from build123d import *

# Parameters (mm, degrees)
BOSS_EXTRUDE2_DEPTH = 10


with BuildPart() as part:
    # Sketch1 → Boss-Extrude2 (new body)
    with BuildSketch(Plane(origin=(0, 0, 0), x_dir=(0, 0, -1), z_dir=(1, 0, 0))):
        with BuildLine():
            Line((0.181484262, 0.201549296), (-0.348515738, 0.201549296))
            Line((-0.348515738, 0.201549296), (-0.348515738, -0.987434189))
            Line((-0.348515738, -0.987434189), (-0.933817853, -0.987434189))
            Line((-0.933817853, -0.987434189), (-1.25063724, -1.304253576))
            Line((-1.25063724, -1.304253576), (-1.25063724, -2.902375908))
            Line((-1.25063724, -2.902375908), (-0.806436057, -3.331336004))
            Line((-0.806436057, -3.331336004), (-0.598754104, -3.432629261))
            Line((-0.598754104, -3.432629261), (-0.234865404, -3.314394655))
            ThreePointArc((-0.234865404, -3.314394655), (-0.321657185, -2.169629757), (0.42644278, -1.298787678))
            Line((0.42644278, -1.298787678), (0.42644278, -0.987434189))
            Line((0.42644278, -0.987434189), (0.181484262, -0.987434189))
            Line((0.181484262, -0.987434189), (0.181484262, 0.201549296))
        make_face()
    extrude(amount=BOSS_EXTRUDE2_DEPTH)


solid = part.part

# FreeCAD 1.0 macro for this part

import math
import FreeCAD as App
import Part
import Sketcher
Q = App.Units.Quantity

doc = App.newDocument("Part")
body = doc.addObject("PartDesign::Body", "Body")

# Sketch on YZ plane
sketch1 = body.newObject("Sketcher::SketchObject", "Sketch")
sketch1.AttachmentSupport = (doc.getObject("YZ_Plane"), [""])
sketch1.MapMode = "FlatFace"
sketch1.addGeometry(Part.LineSegment(App.Vector(0.201549, -0.181484, 0), App.Vector(0.201549, 0.348516, 0)), False)
sketch1.addGeometry(Part.LineSegment(App.Vector(0.201549, 0.348516, 0), App.Vector(-0.987434, 0.348516, 0)), False)
sketch1.addGeometry(Part.LineSegment(App.Vector(-0.987434, 0.348516, 0), App.Vector(-0.987434, 0.933818, 0)), False)
sketch1.addGeometry(Part.LineSegment(App.Vector(-0.987434, 0.933818, 0), App.Vector(-1.304254, 1.250637, 0)), False)
sketch1.addGeometry(Part.LineSegment(App.Vector(-1.304254, 1.250637, 0), App.Vector(-2.902376, 1.250637, 0)), False)
sketch1.addGeometry(Part.LineSegment(App.Vector(-2.902376, 1.250637, 0), App.Vector(-3.331336, 0.806436, 0)), False)
sketch1.addGeometry(Part.LineSegment(App.Vector(-3.331336, 0.806436, 0), App.Vector(-3.432629, 0.598754, 0)), False)
sketch1.addGeometry(Part.LineSegment(App.Vector(-3.432629, 0.598754, 0), App.Vector(-3.314395, 0.234865, 0)), False)
sketch1.addGeometry(Part.ArcOfCircle(Part.Circle(App.Vector(-2.637245, -1.103592, 0), App.Vector(0, 0, 1), 1.5), math.radians(26.835657), math.radians(116.835657)), False)
sketch1.addGeometry(Part.LineSegment(App.Vector(-1.298788, -0.426443, 0), App.Vector(-0.987434, -0.426443, 0)), False)
sketch1.addGeometry(Part.LineSegment(App.Vector(-0.987434, -0.426443, 0), App.Vector(-0.987434, -0.181484, 0)), False)
sketch1.addGeometry(Part.LineSegment(App.Vector(-0.987434, -0.181484, 0), App.Vector(0.201549, -0.181484, 0)), False)
sketch1.addConstraint(Sketcher.Constraint("Coincident", 0, 2, 1, 1))
sketch1.addConstraint(Sketcher.Constraint("Coincident", 1, 2, 2, 1))
sketch1.addConstraint(Sketcher.Constraint("Coincident", 2, 2, 3, 1))
sketch1.addConstraint(Sketcher.Constraint("Coincident", 3, 2, 4, 1))
sketch1.addConstraint(Sketcher.Constraint("Coincident", 4, 2, 5, 1))
sketch1.addConstraint(Sketcher.Constraint("Coincident", 5, 2, 6, 1))
sketch1.addConstraint(Sketcher.Constraint("Coincident", 6, 2, 7, 1))
sketch1.addConstraint(Sketcher.Constraint("Coincident", 7, 2, 8, 2))
sketch1.addConstraint(Sketcher.Constraint("Coincident", 8, 1, 9, 1))
sketch1.addConstraint(Sketcher.Constraint("Coincident", 9, 2, 10, 1))
sketch1.addConstraint(Sketcher.Constraint("Coincident", 10, 2, 11, 1))
sketch1.addConstraint(Sketcher.Constraint("Coincident", 11, 2, 0, 1))
sketch1.addConstraint(Sketcher.Constraint("Vertical", 0))
sketch1.addConstraint(Sketcher.Constraint("Horizontal", 1))
sketch1.addConstraint(Sketcher.Constraint("Vertical", 2))
sketch1.addConstraint(Sketcher.Constraint("Horizontal", 4))
sketch1.addConstraint(Sketcher.Constraint("Horizontal", 9))
sketch1.addConstraint(Sketcher.Constraint("Vertical", 10))
sketch1.addConstraint(Sketcher.Constraint("Horizontal", 11))
sketch1.addConstraint(Sketcher.Constraint("Vertical", 2, 2, 9, 2))
sketch1.addConstraint(Sketcher.Constraint("Radius", 8, Q("1.5 mm")))
sketch1.addConstraint(Sketcher.Constraint("Angle", 3, Q("135 deg")))
sketch1.addConstraint(Sketcher.Constraint("Angle", 5, Q("-134 deg")))
sketch1.addConstraint(Sketcher.Constraint("Angle", 6, Q("-116 deg")))
sketch1.addConstraint(Sketcher.Constraint("Angle", 7, Q("-72 deg")))
sketch1.addConstraint(Sketcher.Constraint("DistanceY", 0, 1, 0, 2, Q("0.53 mm")))
sketch1.addConstraint(Sketcher.Constraint("DistanceY", 10, 1, 10, 2, Q("0.244959 mm")))
sketch1.addConstraint(Sketcher.Constraint("DistanceY", 5, 2, 4, 2, Q("0.444201 mm")))
sketch1.addConstraint(Sketcher.Constraint("DistanceX", 5, 2, 2, 2, Q("2.343902 mm")))
sketch1.addConstraint(Sketcher.Constraint("Distance", 3, Q("0.44805 mm")))
sketch1.addConstraint(Sketcher.Constraint("DistanceX", 1, 2, 1, 1, Q("1.188983 mm")))
sketch1.addConstraint(Sketcher.Constraint("DistanceX", 9, 1, 9, 2, Q("0.311353 mm")))
sketch1.addConstraint(Sketcher.Constraint("DistanceY", 2, 1, 2, 2, Q("0.585302 mm")))
sketch1.addConstraint(Sketcher.Constraint("DistanceX", -1, 1, 0, 2, Q("0.201549 mm")))
sketch1.addConstraint(Sketcher.Constraint("DistanceX", 6, 2, -1, 1, Q("3.432629 mm")))
sketch1.addConstraint(Sketcher.Constraint("DistanceX", 8, 3, 1, 2, Q("1.649811 mm")))
sketch1.addConstraint(Sketcher.Constraint("DistanceY", 8, 3, -1, 1, Q("1.103592 mm")))
pad1 = body.newObject("PartDesign::Pad", "Pad")
pad1.Profile = sketch1
pad1.Length = 10

doc.recompute()
